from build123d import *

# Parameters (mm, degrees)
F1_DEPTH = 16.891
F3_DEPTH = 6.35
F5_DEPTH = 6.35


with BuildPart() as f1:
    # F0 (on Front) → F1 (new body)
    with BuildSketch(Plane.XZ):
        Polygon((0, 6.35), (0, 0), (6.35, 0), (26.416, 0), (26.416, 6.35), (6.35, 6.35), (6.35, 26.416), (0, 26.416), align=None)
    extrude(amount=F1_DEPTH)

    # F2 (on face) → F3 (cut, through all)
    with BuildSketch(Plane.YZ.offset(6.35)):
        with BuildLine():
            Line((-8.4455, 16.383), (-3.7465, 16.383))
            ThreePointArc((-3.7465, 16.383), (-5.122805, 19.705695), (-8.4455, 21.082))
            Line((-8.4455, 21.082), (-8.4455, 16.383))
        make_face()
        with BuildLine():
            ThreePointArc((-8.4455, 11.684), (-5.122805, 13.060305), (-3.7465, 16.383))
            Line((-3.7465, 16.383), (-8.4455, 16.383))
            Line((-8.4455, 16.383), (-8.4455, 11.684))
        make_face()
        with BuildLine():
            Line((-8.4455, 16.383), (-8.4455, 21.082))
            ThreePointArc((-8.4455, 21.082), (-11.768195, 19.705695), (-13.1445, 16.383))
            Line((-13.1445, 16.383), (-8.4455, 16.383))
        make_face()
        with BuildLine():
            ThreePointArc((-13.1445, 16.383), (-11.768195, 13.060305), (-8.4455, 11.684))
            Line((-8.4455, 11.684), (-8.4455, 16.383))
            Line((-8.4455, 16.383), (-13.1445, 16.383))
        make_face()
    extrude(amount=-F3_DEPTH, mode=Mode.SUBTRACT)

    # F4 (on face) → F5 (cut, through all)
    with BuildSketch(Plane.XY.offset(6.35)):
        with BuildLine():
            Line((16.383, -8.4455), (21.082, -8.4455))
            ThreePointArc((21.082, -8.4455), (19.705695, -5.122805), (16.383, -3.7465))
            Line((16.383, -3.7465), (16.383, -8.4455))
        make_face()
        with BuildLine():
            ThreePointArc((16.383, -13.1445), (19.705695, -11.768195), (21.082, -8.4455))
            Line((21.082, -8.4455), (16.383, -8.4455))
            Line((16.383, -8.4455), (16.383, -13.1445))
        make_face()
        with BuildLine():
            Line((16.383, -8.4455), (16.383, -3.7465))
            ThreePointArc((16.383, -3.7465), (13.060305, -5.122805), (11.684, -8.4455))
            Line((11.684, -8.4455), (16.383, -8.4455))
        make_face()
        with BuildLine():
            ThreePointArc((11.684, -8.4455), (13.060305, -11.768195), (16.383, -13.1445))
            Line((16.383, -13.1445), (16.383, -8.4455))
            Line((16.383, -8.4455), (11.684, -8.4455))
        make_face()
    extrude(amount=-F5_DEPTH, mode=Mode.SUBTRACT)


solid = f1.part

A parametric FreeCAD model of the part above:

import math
import FreeCAD as App
import Part
import Sketcher
Q = App.Units.Quantity


def add_polygon(sketch, points):
    """Adds a closed chain of lines whose ends are joined by coincident constraints."""
    first, n = sketch.GeometryCount, len(points)
    for a, b in zip(points, points[1:] + points[:1]):
        sketch.addGeometry(Part.LineSegment(App.Vector(*a, 0), App.Vector(*b, 0)), False)
    for i in range(n):
        sketch.addConstraint(Sketcher.Constraint("Coincident", first + i, 2, first + (i + 1) % n, 1))

doc = App.newDocument("Part")
body = doc.addObject("PartDesign::Body", "Body")

# Sketch on XZ plane
sketch1 = body.newObject("Sketcher::SketchObject", "Sketch")
sketch1.AttachmentSupport = (doc.getObject("XZ_Plane"), [""])
sketch1.MapMode = "FlatFace"
add_polygon(sketch1, [(0, 0), (26, 0), (26, 6), (6, 6), (6, 26), (0, 26)])  # lines 0-5
sketch1.addConstraint([
    Sketcher.Constraint("Horizontal", 0),
    Sketcher.Constraint("Vertical", 1),
    Sketcher.Constraint("Horizontal", 2),
    Sketcher.Constraint("Vertical", 3),
    Sketcher.Constraint("Horizontal", 4),
    Sketcher.Constraint("Vertical", 5),
    Sketcher.Constraint("Coincident", 5, 2, -1, 1),
    Sketcher.Constraint("Equal", 4, 1),
    Sketcher.Constraint("Equal", 2, 3),
    Sketcher.Constraint("DistanceX", 0, 1, 0, 2, Q("1.04 in")),
    Sketcher.Constraint("DistanceX", 2, 2, 2, 1, Q("0.79 in")),
])
pad1 = body.newObject("PartDesign::Pad", "Pad")
pad1.Profile = sketch1
pad1.Length = Q("0.665 in")

# Sketch on YZ plane
sketch2 = body.newObject("Sketcher::SketchObject", "Sketch001")
sketch2.AttachmentSupport = (doc.getObject("YZ_Plane"), [""])
sketch2.MapMode = "FlatFace"
sketch2.AttachmentOffset = App.Placement(App.Vector(0, 0, 0.25 * 25.4), App.Rotation())
sketch2.addGeometry([
    Part.ArcOfCircle(Part.Circle(App.Vector(-8.4, 16.4, 0), App.Vector(0, 0, 1), 4.7), math.radians(0), math.radians(90)),
    Part.ArcOfCircle(Part.Circle(App.Vector(-8.4, 16.4, 0), App.Vector(0, 0, 1), 4.7), math.radians(90), math.radians(180)),
    Part.ArcOfCircle(Part.Circle(App.Vector(-8.4, 16.4, 0), App.Vector(0, 0, 1), 4.7), math.radians(180), math.radians(270)),
    Part.ArcOfCircle(Part.Circle(App.Vector(-8.4, 16.4, 0), App.Vector(0, 0, 1), 4.7), math.radians(-90), math.radians(0)),
], False)
sketch2.addConstraint([
    Sketcher.Constraint("Tangent", 0, 2, 1, 1),
    Sketcher.Constraint("Tangent", 1, 2, 2, 1),
    Sketcher.Constraint("Tangent", 2, 2, 3, 1),
    Sketcher.Constraint("Tangent", 3, 2, 0, 1),
    Sketcher.Constraint("Equal", 0, 1),
    Sketcher.Constraint("Horizontal", 3, 3, 1, 2),
    Sketcher.Constraint("Horizontal", 1, 2, 3, 2),
    Sketcher.Constraint("Vertical", 3, 3, 0, 2),
    Sketcher.Constraint("Vertical", 0, 2, 2, 2),
    Sketcher.Constraint("Radius", 0, Q("0.185 in")),
    Sketcher.Constraint("DistanceY", -1, 1, 0, 2, Q("0.83 in")),
    Sketcher.Constraint("DistanceX", 0, 3, -1, 1, Q("0.3325 in")),
])
pocket1 = body.newObject("PartDesign::Pocket", "Pocket")
pocket1.Profile = sketch2
pocket1.Type = "ThroughAll"

# Sketch on XY plane
sketch3 = body.newObject("Sketcher::SketchObject", "Sketch002")
sketch3.AttachmentSupport = (doc.getObject("XY_Plane"), [""])
sketch3.MapMode = "FlatFace"
sketch3.AttachmentOffset = App.Placement(App.Vector(0, 0, 0.25 * 25.4), App.Rotation())
sketch3.addGeometry([
    Part.ArcOfCircle(Part.Circle(App.Vector(16.4, -8.4, 0), App.Vector(0, 0, 1), 4.7), math.radians(0), math.radians(90)),
    Part.ArcOfCircle(Part.Circle(App.Vector(16.4, -8.4, 0), App.Vector(0, 0, 1), 4.7), math.radians(90), math.radians(180)),
    Part.ArcOfCircle(Part.Circle(App.Vector(16.4, -8.4, 0), App.Vector(0, 0, 1), 4.7), math.radians(180), math.radians(270)),
    Part.ArcOfCircle(Part.Circle(App.Vector(16.4, -8.4, 0), App.Vector(0, 0, 1), 4.7), math.radians(-90), math.radians(0)),
], False)
sketch3.addConstraint([
    Sketcher.Constraint("Tangent", 0, 2, 1, 1),
    Sketcher.Constraint("Tangent", 1, 2, 2, 1),
    Sketcher.Constraint("Tangent", 2, 2, 3, 1),
    Sketcher.Constraint("Tangent", 3, 2, 0, 1),
    Sketcher.Constraint("Equal", 0, 1),
    Sketcher.Constraint("Horizontal", 3, 3, 1, 2),
    Sketcher.Constraint("Horizontal", 1, 2, 3, 2),
    Sketcher.Constraint("Vertical", 3, 3, 0, 2),
    Sketcher.Constraint("Vertical", 0, 2, 2, 2),
    Sketcher.Constraint("Radius", 0, Q("0.185 in")),
    Sketcher.Constraint("DistanceX", -1, 1, 1, 2, Q("0.46 in")),
    Sketcher.Constraint("DistanceY", 0, 3, -1, 1, Q("0.3325 in")),
])
pocket2 = body.newObject("PartDesign::Pocket", "Pocket001")
pocket2.Profile = sketch3
pocket2.Type = "ThroughAll"

doc.recompute()
